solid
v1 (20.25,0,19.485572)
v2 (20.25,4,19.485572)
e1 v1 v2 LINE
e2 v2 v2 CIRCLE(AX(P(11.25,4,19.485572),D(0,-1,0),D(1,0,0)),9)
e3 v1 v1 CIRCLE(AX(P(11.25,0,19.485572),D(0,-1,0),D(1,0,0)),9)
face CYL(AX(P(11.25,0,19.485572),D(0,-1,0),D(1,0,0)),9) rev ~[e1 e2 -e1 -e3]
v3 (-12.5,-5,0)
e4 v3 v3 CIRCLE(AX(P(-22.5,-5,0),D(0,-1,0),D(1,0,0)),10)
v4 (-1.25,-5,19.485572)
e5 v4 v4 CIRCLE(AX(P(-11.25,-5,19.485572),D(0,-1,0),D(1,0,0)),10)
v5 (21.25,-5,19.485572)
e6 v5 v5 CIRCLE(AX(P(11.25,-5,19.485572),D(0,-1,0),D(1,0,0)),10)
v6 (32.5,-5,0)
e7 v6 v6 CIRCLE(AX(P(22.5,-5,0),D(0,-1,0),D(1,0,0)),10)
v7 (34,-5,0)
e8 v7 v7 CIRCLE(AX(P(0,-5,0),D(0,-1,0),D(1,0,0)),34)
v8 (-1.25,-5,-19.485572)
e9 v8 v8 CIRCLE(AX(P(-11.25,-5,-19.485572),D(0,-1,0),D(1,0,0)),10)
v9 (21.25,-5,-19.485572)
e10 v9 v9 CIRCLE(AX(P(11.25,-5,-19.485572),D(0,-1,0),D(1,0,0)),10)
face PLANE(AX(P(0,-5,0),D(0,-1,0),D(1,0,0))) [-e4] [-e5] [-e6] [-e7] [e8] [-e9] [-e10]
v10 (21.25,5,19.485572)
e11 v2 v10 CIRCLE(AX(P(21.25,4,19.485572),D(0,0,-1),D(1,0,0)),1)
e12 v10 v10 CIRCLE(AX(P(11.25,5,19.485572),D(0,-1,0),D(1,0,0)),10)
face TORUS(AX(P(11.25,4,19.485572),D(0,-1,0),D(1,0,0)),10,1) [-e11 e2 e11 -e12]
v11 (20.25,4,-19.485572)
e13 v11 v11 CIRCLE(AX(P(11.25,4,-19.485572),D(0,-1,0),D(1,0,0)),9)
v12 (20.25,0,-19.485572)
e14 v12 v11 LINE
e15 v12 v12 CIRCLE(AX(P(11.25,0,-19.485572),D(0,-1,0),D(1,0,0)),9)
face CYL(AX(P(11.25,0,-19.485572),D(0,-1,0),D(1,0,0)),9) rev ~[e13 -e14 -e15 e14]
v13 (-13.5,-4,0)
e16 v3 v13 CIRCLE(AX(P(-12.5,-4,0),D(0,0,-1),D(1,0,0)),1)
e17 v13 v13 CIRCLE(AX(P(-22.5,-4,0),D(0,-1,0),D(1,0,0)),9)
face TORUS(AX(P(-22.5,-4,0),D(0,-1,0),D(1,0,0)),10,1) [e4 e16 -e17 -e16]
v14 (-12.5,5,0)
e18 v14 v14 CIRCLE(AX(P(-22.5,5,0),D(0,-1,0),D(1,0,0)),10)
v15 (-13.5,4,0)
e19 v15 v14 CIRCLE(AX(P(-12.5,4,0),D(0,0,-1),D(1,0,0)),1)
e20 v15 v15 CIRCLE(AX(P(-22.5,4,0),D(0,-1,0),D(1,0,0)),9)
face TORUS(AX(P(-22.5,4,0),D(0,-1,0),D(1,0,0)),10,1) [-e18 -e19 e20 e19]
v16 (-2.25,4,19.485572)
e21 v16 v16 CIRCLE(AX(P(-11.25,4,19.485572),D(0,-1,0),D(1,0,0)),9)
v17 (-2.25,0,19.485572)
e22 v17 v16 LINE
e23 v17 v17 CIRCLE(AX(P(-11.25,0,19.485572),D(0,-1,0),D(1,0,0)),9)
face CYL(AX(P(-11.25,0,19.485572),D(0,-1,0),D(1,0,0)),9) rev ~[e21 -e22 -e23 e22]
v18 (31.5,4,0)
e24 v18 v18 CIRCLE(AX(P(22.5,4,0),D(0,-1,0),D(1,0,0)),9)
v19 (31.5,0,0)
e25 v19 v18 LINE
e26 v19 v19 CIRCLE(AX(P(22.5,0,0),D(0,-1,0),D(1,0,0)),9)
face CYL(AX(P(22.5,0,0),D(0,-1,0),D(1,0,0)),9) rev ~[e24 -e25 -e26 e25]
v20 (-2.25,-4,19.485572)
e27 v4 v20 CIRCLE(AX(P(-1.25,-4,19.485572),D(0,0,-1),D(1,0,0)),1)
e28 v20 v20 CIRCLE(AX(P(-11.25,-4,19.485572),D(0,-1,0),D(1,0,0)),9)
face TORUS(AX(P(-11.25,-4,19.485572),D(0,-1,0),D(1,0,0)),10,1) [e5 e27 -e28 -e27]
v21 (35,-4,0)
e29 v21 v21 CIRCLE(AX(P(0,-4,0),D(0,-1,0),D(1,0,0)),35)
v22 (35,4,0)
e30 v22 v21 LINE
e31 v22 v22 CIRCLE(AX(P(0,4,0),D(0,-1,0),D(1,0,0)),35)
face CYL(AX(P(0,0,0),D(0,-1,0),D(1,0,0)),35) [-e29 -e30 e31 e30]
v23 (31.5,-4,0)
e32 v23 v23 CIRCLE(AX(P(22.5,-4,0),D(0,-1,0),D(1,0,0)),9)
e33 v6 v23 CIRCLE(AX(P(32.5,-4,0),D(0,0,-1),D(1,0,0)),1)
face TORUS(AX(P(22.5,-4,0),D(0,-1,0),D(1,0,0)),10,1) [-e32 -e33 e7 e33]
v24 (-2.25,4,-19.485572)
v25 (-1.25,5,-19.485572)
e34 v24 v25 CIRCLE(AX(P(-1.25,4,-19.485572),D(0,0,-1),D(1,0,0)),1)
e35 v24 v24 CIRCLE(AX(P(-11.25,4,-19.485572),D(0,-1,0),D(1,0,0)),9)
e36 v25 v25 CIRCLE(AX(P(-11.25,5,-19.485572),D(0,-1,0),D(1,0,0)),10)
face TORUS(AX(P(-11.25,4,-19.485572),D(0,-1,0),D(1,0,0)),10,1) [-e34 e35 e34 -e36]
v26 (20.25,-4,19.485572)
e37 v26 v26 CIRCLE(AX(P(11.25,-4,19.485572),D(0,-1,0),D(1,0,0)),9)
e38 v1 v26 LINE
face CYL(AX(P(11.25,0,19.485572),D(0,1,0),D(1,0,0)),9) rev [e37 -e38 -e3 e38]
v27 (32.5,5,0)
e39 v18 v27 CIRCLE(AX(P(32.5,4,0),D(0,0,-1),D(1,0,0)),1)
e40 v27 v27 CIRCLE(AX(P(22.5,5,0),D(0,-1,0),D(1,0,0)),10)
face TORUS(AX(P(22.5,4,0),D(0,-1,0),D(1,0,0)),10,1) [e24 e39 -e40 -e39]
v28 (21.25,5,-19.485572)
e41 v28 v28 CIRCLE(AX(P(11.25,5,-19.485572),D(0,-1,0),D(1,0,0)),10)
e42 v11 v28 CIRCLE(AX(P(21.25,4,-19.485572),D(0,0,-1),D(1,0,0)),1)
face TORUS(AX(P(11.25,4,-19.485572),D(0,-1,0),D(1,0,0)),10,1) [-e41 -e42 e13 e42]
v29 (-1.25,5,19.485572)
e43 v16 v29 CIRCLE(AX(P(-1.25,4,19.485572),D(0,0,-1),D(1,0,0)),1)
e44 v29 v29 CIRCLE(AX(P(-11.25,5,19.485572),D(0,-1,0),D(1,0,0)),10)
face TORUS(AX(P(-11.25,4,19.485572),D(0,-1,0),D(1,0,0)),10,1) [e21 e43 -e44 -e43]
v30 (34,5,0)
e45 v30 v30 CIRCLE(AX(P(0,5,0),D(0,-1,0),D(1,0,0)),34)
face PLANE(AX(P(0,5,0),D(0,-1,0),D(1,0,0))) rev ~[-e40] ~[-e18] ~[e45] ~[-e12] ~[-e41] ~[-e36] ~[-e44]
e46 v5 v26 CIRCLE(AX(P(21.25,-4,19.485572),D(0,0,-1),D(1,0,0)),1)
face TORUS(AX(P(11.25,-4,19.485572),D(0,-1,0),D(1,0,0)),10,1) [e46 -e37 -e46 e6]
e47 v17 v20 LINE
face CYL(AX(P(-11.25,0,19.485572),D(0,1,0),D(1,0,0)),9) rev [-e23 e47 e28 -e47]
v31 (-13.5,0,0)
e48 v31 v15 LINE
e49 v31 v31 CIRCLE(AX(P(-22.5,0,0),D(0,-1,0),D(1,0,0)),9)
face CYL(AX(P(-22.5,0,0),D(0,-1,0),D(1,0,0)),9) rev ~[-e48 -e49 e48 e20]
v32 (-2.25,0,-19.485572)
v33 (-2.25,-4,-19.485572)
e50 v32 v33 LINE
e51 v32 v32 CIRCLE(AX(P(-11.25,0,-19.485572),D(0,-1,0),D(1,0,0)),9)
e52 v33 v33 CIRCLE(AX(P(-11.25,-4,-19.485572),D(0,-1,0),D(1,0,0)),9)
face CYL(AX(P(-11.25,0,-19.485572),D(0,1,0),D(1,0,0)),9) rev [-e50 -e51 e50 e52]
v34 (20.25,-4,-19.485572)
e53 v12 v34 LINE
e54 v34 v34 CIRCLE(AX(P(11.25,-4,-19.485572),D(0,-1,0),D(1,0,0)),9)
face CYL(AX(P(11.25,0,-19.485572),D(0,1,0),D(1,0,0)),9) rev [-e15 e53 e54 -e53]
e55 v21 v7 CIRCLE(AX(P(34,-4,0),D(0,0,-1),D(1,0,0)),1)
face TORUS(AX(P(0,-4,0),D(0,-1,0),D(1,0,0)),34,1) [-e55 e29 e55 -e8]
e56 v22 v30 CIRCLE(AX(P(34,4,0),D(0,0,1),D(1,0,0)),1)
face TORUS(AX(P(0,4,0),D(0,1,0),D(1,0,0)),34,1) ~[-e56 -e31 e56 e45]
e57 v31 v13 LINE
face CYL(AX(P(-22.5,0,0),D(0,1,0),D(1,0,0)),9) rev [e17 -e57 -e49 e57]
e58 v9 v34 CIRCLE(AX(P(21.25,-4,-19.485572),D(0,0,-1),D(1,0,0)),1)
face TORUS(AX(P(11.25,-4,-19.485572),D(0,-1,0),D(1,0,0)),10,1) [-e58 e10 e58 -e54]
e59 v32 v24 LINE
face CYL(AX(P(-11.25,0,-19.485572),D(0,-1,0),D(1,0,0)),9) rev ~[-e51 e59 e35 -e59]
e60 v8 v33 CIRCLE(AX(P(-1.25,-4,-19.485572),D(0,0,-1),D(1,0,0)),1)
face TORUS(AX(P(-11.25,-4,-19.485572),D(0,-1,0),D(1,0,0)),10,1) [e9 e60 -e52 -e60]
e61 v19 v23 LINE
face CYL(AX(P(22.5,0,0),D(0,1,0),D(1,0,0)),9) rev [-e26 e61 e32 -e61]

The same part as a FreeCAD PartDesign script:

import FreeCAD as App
import Part
import Sketcher
from FreeCAD import Vector


def edges_at(feature, points):
    """Names of the edges that pass closest to the given points."""
    edges = feature.Shape.Edges
    near = lambda p: min(range(len(edges)), key=lambda i: edges[i].distToShape(Part.Vertex(*p))[0])
    return sorted({f"Edge{near(p) + 1}" for p in points})

doc = App.newDocument("Part")
params = doc.addObject("Spreadsheet::Sheet", "Params")
for row, (alias, value) in enumerate([
    ("sketch1_diameter", "70 mm"),
    ("sketch1_diameter2", "18 mm"),
    ("pad1_length", "5 mm"),
    ("pad1_length2", "5 mm"),
    ("fillet_radius", "1 mm"),
], start=1):
    params.set(f"A{row}", alias)
    params.set(f"B{row}", "=" + value)
    params.setAlias(f"B{row}", alias)

body = doc.addObject("PartDesign::Body", "Body")

sketch1 = doc.addObject("Sketcher::SketchObject", "Sketch")
body.addObject(sketch1)
sketch1.AttachmentSupport = (doc.XZ_Plane, [""])
sketch1.MapMode = "FlatFace"
sketch1.addGeometry([
    Part.Circle(Vector(0, 0, 0), Vector(0, 0, 1), 35),
    Part.Circle(Vector(-11, -19, 0), Vector(0, 0, 1), 9),
    Part.Circle(Vector(11, -19, 0), Vector(0, 0, 1), 9),
    Part.Circle(Vector(-22, 0, 0), Vector(0, 0, 1), 9),
    Part.Circle(Vector(-11, 19, 0), Vector(0, 0, 1), 9),
    Part.Circle(Vector(22, 0, 0), Vector(0, 0, 1), 9),
    Part.Circle(Vector(11, 19, 0), Vector(0, 0, 1), 9),
], False)
sketch1.addConstraint([
    Sketcher.Constraint("Coincident", 0, 3, -1, 1),
    Sketcher.Constraint("Equal", 1, 2),
    Sketcher.Constraint("Equal", 2, 3),
    Sketcher.Constraint("Equal", 3, 4),
    Sketcher.Constraint("Equal", 4, 5),
    Sketcher.Constraint("Equal", 5, 6),
    Sketcher.Constraint("Symmetric", 2, 3, 4, 3, -1, 1),
    Sketcher.Constraint("Symmetric", 3, 3, 5, 3, -1, 1),
    Sketcher.Constraint("Symmetric", 1, 3, 6, 3, -1, 1),
    Sketcher.Constraint("Symmetric", 1, 3, 2, 3, -2),
    Sketcher.Constraint("PointOnObject", 3, 3, -1),
    Sketcher.Constraint("Diameter", 0, 70.0),
    Sketcher.Constraint("Diameter", 1, 18.0),
    Sketcher.Constraint("DistanceX", 3, 3, 5, 3, 45.0),
    Sketcher.Constraint("DistanceX", 1, 3, 2, 3, 22.5),
    Sketcher.Constraint("DistanceY", 1, 3, -1, 1, 19.485572),
])
sketch1.setExpression("Constraints[11]", "Params.sketch1_diameter")
sketch1.setExpression("Constraints[12]", "Params.sketch1_diameter2")
pad1 = doc.addObject("PartDesign::Pad", "Pad")
body.addObject(pad1)
pad1.Profile = sketch1
pad1.Type = "TwoLengths"
pad1.setExpression("Length", "Params.pad1_length")
pad1.setExpression("Length2", "Params.pad1_length2")
doc.recompute()

fillet = doc.addObject("PartDesign::Fillet", "Fillet")
body.addObject(fillet)
fillet.Base = (pad1, edges_at(pad1, [
    (-35, -5, 0),
    (-20.25, -5, 19.486),
    (2.25, -5, 19.486),
    (13.5, -5, 0),
    (2.25, -5, -19.486),
    (-20.25, -5, -19.486),
    (-31.5, -5, 0),
    (-35, 5, 0),
    (2.25, 5, -19.486),
    (-20.25, 5, -19.486),
    (-31.5, 5, 0),
    (-20.25, 5, 19.486),
    (2.25, 5, 19.486),
    (13.5, 5, 0),
]))
fillet.setExpression("Radius", "Params.fillet_radius")

doc.recompute()
